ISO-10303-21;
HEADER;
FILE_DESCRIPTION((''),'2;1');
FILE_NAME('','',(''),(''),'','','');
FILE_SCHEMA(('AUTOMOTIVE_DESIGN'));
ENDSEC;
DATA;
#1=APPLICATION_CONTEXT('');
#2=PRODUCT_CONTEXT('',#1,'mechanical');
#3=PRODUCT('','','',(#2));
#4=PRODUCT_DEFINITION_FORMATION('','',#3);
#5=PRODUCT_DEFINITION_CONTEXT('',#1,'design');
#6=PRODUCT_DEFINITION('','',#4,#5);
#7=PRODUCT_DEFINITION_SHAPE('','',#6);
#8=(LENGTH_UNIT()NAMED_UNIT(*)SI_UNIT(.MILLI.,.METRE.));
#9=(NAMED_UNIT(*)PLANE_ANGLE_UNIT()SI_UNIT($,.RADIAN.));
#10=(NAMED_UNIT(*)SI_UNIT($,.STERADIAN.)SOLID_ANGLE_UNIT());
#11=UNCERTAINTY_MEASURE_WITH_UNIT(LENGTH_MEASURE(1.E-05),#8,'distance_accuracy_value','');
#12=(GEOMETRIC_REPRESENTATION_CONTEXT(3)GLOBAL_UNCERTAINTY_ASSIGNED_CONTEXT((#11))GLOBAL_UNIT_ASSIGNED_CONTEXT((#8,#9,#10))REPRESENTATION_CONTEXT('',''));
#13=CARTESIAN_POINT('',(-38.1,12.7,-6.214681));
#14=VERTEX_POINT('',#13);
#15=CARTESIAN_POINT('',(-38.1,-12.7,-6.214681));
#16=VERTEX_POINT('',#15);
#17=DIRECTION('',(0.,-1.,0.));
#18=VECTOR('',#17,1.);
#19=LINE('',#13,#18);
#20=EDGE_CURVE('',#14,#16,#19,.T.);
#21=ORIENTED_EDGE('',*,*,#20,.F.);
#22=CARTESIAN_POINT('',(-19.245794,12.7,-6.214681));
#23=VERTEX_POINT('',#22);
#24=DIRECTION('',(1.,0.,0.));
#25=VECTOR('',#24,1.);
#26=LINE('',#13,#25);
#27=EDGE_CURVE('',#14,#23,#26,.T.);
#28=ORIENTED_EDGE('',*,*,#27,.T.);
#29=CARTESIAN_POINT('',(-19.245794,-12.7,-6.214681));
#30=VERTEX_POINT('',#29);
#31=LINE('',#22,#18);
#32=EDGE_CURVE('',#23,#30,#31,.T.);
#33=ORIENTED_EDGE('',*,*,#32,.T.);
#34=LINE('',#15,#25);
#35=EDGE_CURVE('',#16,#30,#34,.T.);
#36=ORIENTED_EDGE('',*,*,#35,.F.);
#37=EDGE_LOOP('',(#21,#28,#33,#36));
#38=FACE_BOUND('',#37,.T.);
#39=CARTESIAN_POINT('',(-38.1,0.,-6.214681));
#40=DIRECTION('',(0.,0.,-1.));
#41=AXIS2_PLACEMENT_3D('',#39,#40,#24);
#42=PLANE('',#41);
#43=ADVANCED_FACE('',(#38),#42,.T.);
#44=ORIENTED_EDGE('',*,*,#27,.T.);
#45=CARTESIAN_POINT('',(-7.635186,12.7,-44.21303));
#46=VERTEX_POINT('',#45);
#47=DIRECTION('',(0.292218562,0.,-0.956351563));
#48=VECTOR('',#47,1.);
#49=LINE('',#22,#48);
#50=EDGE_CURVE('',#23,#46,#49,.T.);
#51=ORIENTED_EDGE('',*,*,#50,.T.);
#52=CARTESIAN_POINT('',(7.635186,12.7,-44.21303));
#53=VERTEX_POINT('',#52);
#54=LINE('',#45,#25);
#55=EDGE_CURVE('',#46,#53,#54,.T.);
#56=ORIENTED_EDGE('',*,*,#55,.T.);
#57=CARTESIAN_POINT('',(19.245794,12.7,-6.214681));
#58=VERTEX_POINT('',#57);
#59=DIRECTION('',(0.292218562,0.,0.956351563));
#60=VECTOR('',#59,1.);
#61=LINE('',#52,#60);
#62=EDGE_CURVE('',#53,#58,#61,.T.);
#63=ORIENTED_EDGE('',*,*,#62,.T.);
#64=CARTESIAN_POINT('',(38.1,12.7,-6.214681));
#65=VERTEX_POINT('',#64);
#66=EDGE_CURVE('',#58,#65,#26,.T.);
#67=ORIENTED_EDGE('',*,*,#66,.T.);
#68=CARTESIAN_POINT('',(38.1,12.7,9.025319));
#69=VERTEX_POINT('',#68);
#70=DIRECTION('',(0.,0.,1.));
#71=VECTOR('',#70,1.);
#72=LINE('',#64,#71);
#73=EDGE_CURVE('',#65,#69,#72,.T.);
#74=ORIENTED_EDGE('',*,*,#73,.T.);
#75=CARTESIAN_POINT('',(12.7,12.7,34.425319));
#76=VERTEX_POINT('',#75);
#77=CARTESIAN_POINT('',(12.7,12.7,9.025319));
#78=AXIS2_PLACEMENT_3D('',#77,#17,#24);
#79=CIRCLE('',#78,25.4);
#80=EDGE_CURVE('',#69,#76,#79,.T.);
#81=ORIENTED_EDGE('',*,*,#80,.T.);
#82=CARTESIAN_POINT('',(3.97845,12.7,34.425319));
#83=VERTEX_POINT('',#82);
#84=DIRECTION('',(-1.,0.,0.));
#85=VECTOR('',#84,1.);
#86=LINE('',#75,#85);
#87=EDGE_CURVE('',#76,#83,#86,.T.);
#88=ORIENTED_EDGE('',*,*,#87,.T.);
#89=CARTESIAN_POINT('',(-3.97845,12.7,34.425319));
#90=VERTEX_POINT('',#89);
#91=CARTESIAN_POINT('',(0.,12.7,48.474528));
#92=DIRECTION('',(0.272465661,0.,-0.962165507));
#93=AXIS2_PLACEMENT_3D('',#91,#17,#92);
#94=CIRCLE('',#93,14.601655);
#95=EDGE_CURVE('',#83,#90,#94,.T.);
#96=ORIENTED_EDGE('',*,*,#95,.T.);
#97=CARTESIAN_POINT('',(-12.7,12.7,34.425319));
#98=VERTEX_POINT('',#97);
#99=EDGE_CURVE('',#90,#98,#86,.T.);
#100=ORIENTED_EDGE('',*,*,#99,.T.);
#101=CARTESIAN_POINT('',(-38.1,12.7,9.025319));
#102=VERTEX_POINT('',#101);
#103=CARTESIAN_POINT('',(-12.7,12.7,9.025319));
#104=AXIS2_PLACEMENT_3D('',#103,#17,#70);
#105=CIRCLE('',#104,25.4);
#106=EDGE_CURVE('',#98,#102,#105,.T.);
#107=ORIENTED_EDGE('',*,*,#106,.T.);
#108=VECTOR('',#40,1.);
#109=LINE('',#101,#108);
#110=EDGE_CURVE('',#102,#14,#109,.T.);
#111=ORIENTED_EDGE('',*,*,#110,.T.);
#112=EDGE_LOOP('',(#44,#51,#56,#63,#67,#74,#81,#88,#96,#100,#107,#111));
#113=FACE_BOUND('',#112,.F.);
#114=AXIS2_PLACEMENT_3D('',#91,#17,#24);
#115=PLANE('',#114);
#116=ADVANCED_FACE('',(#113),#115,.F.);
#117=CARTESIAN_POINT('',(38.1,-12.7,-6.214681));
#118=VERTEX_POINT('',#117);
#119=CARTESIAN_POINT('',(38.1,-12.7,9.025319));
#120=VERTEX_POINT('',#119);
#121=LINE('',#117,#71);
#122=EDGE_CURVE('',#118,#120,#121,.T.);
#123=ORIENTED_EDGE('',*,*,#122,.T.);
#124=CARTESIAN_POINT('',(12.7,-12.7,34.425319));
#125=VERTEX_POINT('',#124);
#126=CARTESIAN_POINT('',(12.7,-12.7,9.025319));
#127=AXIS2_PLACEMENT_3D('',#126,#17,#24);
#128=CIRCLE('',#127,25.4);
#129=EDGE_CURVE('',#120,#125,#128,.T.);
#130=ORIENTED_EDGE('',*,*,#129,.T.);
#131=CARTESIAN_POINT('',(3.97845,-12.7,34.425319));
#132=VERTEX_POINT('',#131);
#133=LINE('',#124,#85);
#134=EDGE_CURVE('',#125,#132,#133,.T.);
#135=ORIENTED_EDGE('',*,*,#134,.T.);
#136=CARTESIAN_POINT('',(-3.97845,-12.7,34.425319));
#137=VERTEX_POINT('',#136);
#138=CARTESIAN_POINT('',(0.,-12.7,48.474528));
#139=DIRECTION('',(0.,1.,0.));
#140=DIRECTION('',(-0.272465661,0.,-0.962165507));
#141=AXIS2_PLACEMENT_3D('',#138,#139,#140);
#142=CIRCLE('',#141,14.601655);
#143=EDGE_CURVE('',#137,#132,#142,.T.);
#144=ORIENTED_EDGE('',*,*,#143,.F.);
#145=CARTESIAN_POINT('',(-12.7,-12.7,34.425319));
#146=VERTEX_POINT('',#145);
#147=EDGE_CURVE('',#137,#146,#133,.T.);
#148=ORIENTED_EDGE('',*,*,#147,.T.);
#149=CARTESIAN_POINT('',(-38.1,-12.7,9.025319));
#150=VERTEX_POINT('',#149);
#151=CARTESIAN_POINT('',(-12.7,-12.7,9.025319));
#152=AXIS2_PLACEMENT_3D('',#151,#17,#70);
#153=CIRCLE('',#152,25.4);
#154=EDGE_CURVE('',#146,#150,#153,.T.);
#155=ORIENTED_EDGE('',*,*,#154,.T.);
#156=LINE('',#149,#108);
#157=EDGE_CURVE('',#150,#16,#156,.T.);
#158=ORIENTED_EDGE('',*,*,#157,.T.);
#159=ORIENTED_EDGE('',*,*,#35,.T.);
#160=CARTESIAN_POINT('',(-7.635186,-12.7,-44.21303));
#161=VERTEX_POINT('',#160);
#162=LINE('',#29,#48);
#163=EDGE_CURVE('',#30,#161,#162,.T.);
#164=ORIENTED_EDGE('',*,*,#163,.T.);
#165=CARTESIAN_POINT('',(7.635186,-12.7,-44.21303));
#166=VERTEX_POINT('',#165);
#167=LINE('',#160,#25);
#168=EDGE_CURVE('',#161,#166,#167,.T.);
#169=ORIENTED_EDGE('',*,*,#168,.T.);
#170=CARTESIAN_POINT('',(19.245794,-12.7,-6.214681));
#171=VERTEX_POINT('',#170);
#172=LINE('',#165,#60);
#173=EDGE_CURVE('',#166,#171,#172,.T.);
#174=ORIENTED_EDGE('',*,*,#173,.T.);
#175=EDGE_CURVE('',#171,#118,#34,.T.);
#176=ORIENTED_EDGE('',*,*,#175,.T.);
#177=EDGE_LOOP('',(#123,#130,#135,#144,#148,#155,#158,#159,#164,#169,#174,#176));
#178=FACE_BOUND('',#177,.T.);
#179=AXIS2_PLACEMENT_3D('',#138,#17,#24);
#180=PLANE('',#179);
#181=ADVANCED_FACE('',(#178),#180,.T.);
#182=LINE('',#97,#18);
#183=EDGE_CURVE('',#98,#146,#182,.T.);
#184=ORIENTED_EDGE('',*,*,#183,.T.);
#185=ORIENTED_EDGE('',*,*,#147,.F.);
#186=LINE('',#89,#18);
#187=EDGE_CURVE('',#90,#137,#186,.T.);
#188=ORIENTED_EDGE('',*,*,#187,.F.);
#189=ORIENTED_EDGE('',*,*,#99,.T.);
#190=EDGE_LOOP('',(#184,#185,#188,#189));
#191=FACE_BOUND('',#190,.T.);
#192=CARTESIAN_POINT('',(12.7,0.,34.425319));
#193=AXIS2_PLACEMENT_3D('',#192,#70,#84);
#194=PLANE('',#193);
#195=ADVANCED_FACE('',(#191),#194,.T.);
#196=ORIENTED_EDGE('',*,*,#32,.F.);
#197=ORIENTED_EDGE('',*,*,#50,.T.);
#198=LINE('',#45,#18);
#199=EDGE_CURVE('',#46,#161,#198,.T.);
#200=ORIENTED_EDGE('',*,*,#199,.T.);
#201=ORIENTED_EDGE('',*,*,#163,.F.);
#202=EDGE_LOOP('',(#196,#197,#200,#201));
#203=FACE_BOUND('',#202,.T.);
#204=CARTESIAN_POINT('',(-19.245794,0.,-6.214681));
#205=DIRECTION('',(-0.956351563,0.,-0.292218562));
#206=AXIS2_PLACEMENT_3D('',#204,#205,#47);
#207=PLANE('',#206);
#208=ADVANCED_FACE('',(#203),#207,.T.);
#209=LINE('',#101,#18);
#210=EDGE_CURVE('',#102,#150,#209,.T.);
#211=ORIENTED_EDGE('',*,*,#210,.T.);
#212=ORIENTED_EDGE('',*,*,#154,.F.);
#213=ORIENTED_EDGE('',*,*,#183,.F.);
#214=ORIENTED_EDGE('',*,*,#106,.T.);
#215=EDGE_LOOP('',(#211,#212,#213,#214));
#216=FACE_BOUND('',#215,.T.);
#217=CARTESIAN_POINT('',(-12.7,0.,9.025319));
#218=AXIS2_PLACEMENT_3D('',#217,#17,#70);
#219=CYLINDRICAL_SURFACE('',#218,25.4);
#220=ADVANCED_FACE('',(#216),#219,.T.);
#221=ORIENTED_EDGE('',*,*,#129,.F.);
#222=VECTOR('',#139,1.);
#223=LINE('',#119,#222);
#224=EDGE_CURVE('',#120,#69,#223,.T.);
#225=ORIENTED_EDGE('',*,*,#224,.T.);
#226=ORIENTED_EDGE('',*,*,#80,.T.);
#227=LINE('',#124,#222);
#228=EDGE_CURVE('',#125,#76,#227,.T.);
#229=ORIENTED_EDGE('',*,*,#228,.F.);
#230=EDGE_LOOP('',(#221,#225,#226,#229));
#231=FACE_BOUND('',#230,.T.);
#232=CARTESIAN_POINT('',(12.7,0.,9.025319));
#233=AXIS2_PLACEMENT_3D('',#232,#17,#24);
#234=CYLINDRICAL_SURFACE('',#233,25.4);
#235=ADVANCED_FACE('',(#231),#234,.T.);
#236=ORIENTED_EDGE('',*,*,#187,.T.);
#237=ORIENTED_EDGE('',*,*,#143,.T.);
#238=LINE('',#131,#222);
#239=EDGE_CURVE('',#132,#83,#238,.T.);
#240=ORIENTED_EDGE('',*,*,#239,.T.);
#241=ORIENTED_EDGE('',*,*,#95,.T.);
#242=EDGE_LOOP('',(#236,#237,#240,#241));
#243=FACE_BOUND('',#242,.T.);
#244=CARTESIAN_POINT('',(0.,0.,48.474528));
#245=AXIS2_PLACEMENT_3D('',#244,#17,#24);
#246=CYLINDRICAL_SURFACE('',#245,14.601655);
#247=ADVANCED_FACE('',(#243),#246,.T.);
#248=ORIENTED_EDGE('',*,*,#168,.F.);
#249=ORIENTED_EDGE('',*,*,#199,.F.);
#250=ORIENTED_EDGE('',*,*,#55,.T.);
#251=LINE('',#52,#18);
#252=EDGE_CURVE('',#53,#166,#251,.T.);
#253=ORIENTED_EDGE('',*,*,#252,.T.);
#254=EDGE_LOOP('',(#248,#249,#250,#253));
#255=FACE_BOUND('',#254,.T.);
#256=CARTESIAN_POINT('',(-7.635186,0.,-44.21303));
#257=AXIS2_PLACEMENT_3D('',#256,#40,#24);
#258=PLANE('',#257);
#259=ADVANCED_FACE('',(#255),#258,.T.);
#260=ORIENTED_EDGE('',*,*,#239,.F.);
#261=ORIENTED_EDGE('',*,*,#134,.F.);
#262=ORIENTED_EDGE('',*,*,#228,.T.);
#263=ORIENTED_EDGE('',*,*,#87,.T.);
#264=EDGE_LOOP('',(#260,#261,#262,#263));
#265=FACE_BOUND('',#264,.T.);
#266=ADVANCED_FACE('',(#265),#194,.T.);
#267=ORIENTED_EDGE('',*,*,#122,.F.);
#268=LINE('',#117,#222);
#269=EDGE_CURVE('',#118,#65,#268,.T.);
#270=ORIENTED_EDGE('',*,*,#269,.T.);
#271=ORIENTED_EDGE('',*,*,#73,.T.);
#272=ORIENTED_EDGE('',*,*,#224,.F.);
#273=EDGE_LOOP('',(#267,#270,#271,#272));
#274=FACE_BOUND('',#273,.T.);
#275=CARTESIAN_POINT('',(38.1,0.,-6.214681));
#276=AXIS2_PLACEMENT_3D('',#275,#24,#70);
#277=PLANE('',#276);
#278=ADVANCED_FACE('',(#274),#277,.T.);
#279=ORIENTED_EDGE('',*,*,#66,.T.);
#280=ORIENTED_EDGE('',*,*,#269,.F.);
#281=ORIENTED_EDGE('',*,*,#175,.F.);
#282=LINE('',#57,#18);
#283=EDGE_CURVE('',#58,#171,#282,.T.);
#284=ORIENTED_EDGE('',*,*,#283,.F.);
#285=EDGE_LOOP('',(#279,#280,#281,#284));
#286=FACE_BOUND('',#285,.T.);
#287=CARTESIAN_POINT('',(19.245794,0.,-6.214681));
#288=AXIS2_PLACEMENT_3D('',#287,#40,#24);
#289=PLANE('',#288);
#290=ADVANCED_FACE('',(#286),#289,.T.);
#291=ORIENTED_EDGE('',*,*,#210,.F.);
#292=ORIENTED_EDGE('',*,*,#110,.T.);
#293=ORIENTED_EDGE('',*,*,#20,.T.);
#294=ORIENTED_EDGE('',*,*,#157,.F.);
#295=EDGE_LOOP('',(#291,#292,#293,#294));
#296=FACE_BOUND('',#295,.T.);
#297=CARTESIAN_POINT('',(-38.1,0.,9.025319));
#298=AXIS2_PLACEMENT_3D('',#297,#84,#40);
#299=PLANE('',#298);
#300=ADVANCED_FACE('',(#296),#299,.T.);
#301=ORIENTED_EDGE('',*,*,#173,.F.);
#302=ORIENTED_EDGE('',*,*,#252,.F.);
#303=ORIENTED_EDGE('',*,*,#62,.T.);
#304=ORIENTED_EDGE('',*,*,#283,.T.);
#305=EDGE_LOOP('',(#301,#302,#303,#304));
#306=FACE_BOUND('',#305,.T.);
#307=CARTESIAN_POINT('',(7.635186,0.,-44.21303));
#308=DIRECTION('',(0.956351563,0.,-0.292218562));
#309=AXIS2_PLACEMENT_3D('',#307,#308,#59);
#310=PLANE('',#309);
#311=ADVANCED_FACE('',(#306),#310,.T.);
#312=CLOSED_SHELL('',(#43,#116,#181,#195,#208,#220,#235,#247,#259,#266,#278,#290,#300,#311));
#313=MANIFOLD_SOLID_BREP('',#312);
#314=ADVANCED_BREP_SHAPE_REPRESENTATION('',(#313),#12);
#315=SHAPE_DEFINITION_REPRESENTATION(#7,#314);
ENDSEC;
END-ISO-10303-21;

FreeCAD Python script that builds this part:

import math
import FreeCAD as App
import Part
import Sketcher

V = App.Vector
Q = App.Units.Quantity

doc = App.newDocument("Part")
body = doc.addObject("PartDesign::Body", "Body")

# Sketch on XZ plane
sketch1 = body.newObject("Sketcher::SketchObject", "Sketch")
sketch1.AttachmentSupport = (doc.getObject("XZ_Plane"), [""])
sketch1.MapMode = "FlatFace"
sketch1.addGeometry([
    Part.LineSegment(V(12.7, 34.425319, 0), V(-12.7, 34.425319, 0)),  # 0
    Part.ArcOfCircle(Part.Circle(V(-12.7, 9.025319, 0), V(0, 0, 1), 25.4), math.radians(90), math.radians(180)),  # 1
    Part.LineSegment(V(-38.1, 9.025319, 0), V(-38.1, -6.214681, 0)),  # 2
    Part.LineSegment(V(-38.1, -6.214681, 0), V(-19.245794, -6.214681, 0)),  # 3
    Part.LineSegment(V(-19.245794, -6.214681, 0), V(-7.635186, -44.21303, 0)),  # 4
    Part.LineSegment(V(-7.635186, -44.21303, 0), V(7.635186, -44.21303, 0)),  # 5
    Part.LineSegment(V(7.635186, -44.21303, 0), V(19.245794, -6.214681, 0)),  # 6
    Part.LineSegment(V(19.245794, -6.214681, 0), V(38.1, -6.214681, 0)),  # 7
    Part.LineSegment(V(38.1, -6.214681, 0), V(38.1, 9.025319, 0)),  # 8
    Part.ArcOfCircle(Part.Circle(V(12.7, 9.025319, 0), V(0, 0, 1), 25.4), math.radians(0), math.radians(90)),  # 9
], False)
sketch1.addConstraint([
    Sketcher.Constraint("Tangent", 0, 2, 1, 1),
    Sketcher.Constraint("Tangent", 1, 2, 2, 1),
    Sketcher.Constraint("Coincident", 2, 2, 3, 1),
    Sketcher.Constraint("Coincident", 3, 2, 4, 1),
    Sketcher.Constraint("Coincident", 4, 2, 5, 1),
    Sketcher.Constraint("Coincident", 5, 2, 6, 1),
    Sketcher.Constraint("Coincident", 6, 2, 7, 1),
    Sketcher.Constraint("Coincident", 7, 2, 8, 1),
    Sketcher.Constraint("Tangent", 8, 2, 9, 1),
    Sketcher.Constraint("Tangent", 9, 2, 0, 1),
    Sketcher.Constraint("Horizontal", 0),
    Sketcher.Constraint("Vertical", 2),
    Sketcher.Constraint("Horizontal", 3),
    Sketcher.Constraint("Horizontal", 5),
    Sketcher.Constraint("Horizontal", 7),
    Sketcher.Constraint("Vertical", 8),
    Sketcher.Constraint("Equal", 1, 9),
    Sketcher.Constraint("Symmetric", 3, 2, 6, 2, -2),
    Sketcher.Constraint("Equal", 3, 7),
    Sketcher.Constraint("Equal", 4, 6),
    Sketcher.Constraint("Radius", 1, Q("1 in")),
    Sketcher.Constraint("DistanceX", 0, 2, 0, 1, Q("1 in")),
    Sketcher.Constraint("DistanceY", 2, 2, 2, 1, Q("0.6 in")),
    Sketcher.Constraint("DistanceX", 5, 1, 5, 2, Q("15.270372 mm")),
    Sketcher.Constraint("DistanceX", 3, 1, 3, 2, Q("18.854206 mm")),
    Sketcher.Constraint("DistanceY", -1, 1, 1, 3, Q("9.025319 mm")),
    Sketcher.Constraint("DistanceY", 4, 2, -1, 1, Q("44.21303 mm")),
])
pad1 = body.newObject("PartDesign::Pad", "Pad")
pad1.Profile = sketch1
pad1.Type = "TwoLengths"
pad1.Length = Q("0.5 in")
pad1.Length2 = Q("0.5 in")

# Sketch on XZ plane
sketch2 = body.newObject("Sketcher::SketchObject", "Sketch001")
sketch2.AttachmentSupport = (doc.getObject("XZ_Plane"), [""])
sketch2.MapMode = "FlatFace"
sketch2.addGeometry(Part.Circle(V(0, 48.474528, 0), V(0, 0, 1), 14.601655), False)
sketch2.addConstraint([
    Sketcher.Constraint("PointOnObject", 0, 3, -2),
    Sketcher.Constraint("Diameter", 0, Q("29.203309 mm")),
    Sketcher.Constraint("DistanceY", -1, 1, 0, 3, Q("48.474528 mm")),
])
pad2 = body.newObject("PartDesign::Pad", "Pad001")
pad2.Profile = sketch2
pad2.Type = "TwoLengths"
pad2.Length = Q("0.5 in")
pad2.Length2 = Q("0.5 in")

doc.recompute()
